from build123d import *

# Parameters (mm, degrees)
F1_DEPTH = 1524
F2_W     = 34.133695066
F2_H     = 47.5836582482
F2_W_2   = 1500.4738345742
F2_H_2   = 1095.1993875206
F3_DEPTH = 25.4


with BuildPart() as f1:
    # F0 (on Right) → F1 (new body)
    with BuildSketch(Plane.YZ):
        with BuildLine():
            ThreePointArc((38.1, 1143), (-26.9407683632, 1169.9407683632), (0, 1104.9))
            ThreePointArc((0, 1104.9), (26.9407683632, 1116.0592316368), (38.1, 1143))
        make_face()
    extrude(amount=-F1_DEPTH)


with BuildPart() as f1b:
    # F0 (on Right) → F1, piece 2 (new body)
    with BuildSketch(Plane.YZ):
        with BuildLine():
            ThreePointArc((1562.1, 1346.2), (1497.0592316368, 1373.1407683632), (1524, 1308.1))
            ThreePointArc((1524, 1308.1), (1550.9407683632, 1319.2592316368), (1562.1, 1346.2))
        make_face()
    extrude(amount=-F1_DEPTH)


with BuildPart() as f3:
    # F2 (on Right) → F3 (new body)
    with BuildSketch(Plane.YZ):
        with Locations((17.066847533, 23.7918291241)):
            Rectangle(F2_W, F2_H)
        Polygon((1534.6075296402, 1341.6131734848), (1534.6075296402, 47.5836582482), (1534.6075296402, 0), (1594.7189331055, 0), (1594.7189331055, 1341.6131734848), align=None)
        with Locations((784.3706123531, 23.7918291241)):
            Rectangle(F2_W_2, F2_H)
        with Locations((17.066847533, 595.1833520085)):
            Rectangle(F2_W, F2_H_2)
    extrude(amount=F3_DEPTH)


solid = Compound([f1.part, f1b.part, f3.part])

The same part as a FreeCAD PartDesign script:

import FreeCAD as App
import Part
import Sketcher
from FreeCAD import Vector
Q = App.Units.Quantity

doc = App.newDocument("Part")
body = doc.addObject("PartDesign::Body", "Body")

# Sketch on YZ plane
sketch1 = body.newObject("Sketcher::SketchObject", "Sketch")
sketch1.AttachmentSupport = (doc.getObject("YZ_Plane"), [""])
sketch1.MapMode = "FlatFace"
sketch1.addGeometry(Part.Circle(Vector(0, 1143, 0), Vector(0, 0, 1), 38.1), False)
sketch1.addConstraint([
    Sketcher.Constraint("PointOnObject", 0, 3, -2),
    Sketcher.Constraint("Diameter", 0, Q("3 in")),
    Sketcher.Constraint("DistanceY", -1, 1, 0, 3, Q("45 in")),
])
pad1 = body.newObject("PartDesign::Pad", "Pad")
pad1.Profile = sketch1
pad1.Length = Q("60 in")
pad1.Reversed = True
body2 = doc.addObject("PartDesign::Body", "Body001")

# Sketch on YZ plane
sketch2 = body2.newObject("Sketcher::SketchObject", "Sketch001")
sketch2.AttachmentSupport = (doc.getObject("YZ_Plane001"), [""])
sketch2.MapMode = "FlatFace"
sketch2.addGeometry(Part.Circle(Vector(1524, 1346.2, 0), Vector(0, 0, 1), 38.1), False)
sketch2.addConstraint([
    Sketcher.Constraint("Diameter", 0, Q("3 in")),
    Sketcher.Constraint("DistanceX", -1, 1, 0, 3, Q("60 in")),
    Sketcher.Constraint("DistanceY", -1, 1, 0, 3, Q("53 in")),
])
pad2 = body2.newObject("PartDesign::Pad", "Pad001")
pad2.Profile = sketch2
pad2.Length = Q("60 in")
pad2.Reversed = True
body3 = doc.addObject("PartDesign::Body", "Body002")

# Sketch on YZ plane
sketch3 = body3.newObject("Sketcher::SketchObject", "Sketch002")
sketch3.AttachmentSupport = (doc.getObject("YZ_Plane002"), [""])
sketch3.MapMode = "FlatFace"
sketch3.addGeometry([
    Part.LineSegment(Vector(0, 0, 0), Vector(1594.718933, 0, 0)),  # 0
    Part.LineSegment(Vector(1594.718933, 0, 0), Vector(1594.718933, 1341.613173, 0)),  # 1
    Part.LineSegment(Vector(1594.718933, 1341.613173, 0), Vector(1534.60753, 1341.613173, 0)),  # 2
    Part.LineSegment(Vector(1534.60753, 1341.613173, 0), Vector(1534.60753, 47.583658, 0)),  # 3
    Part.LineSegment(Vector(1534.60753, 47.583658, 0), Vector(34.133695, 47.583658, 0)),  # 4
    Part.LineSegment(Vector(34.133695, 47.583658, 0), Vector(34.133695, 1142.783046, 0)),  # 5
    Part.LineSegment(Vector(34.133695, 1142.783046, 0), Vector(0, 1142.783046, 0)),  # 6
    Part.LineSegment(Vector(0, 1142.783046, 0), Vector(0, 0, 0)),  # 7
], False)
sketch3.addConstraint([
    Sketcher.Constraint("Coincident", 0, 2, 1, 1),
    Sketcher.Constraint("Coincident", 1, 2, 2, 1),
    Sketcher.Constraint("Coincident", 2, 2, 3, 1),
    Sketcher.Constraint("Coincident", 3, 2, 4, 1),
    Sketcher.Constraint("Coincident", 4, 2, 5, 1),
    Sketcher.Constraint("Coincident", 5, 2, 6, 1),
    Sketcher.Constraint("Coincident", 6, 2, 7, 1),
    Sketcher.Constraint("Coincident", 7, 2, 0, 1),
    Sketcher.Constraint("Horizontal", 0),
    Sketcher.Constraint("Vertical", 1),
    Sketcher.Constraint("Horizontal", 2),
    Sketcher.Constraint("Vertical", 3),
    Sketcher.Constraint("Horizontal", 4),
    Sketcher.Constraint("Vertical", 5),
    Sketcher.Constraint("Horizontal", 6),
    Sketcher.Constraint("Vertical", 7),
    Sketcher.Constraint("Coincident", 7, 2, -1, 1),
    Sketcher.Constraint("DistanceX", 0, 1, 0, 2, 1594.718933),
    Sketcher.Constraint("DistanceX", 2, 2, 2, 1, 60.111403),
    Sketcher.Constraint("DistanceX", 4, 2, 4, 1, 1500.473835),
    Sketcher.Constraint("DistanceY", 1, 1, 1, 2, 1341.613173),
    Sketcher.Constraint("DistanceY", 3, 2, 3, 1, 1294.029515),
    Sketcher.Constraint("DistanceY", 5, 1, 5, 2, 1095.199388),
])
pad3 = body3.newObject("PartDesign::Pad", "Pad002")
pad3.Profile = sketch3
pad3.Length = Q("1 in")

doc.recompute()
